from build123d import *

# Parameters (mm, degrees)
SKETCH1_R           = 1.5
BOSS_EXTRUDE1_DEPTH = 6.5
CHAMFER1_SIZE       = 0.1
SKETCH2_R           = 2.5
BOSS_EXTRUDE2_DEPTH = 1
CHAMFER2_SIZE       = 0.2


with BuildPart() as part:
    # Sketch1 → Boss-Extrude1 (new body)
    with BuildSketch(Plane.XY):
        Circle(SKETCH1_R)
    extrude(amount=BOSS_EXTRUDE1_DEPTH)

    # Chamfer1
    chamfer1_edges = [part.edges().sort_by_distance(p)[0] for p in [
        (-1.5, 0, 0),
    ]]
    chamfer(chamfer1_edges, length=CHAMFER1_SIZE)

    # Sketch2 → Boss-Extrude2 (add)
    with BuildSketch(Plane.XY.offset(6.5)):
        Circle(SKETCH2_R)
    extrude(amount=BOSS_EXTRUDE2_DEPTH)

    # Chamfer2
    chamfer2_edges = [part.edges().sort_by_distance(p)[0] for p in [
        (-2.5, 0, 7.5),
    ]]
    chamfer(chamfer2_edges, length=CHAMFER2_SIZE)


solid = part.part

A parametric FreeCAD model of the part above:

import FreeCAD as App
import Part
import Sketcher

V = App.Vector
Q = App.Units.Quantity


def edges_at(feature, points):
    """Names of the edges that pass closest to the given points."""
    edges = feature.Shape.Edges
    near = lambda p: min(range(len(edges)), key=lambda i: edges[i].distToShape(Part.Vertex(*p))[0])
    return sorted({f"Edge{near(p) + 1}" for p in points})

doc = App.newDocument("Part")
params = doc.addObject("Spreadsheet::Sheet", "Params")
for row, (alias, value) in enumerate([
    ("sketch1_diameter", "3 mm"),
    ("pad1_length", "6.5 mm"),
    ("chamfer_size", "0.1 mm"),
    ("sketch2_diameter", "5 mm"),
    ("pad2_length", "1 mm"),
    ("chamfer2_size", "0.2 mm"),
], start=1):
    params.set(f"A{row}", alias)
    params.set(f"B{row}", "=" + value)
    params.setAlias(f"B{row}", alias)

body = doc.addObject("PartDesign::Body", "Body")

sketch1 = body.newObject("Sketcher::SketchObject", "Sketch")
sketch1.AttachmentSupport = (doc.getObject("XY_Plane"), [""])
sketch1.MapMode = "FlatFace"
sketch1.addGeometry(Part.Circle(V(0, 0, 0), V(0, 0, 1), 1.5), False)
sketch1.addConstraint(Sketcher.Constraint("Coincident", 0, 3, -1, 1))
sketch1.addConstraint(Sketcher.Constraint("Diameter", 0, Q("3 mm")))
sketch1.setExpression("Constraints[1]", "Params.sketch1_diameter")
pad1 = body.newObject("PartDesign::Pad", "Pad")
pad1.Profile = sketch1
pad1.setExpression("Length", "Params.pad1_length")
doc.recompute()

chamfer = body.newObject("PartDesign::Chamfer", "Chamfer")
chamfer.Base = (pad1, edges_at(pad1, [(-1.5, 0, 0)]))
chamfer.setExpression("Size", "Params.chamfer_size")

sketch2 = body.newObject("Sketcher::SketchObject", "Sketch001")
sketch2.AttachmentSupport = (doc.getObject("XY_Plane"), [""])
sketch2.MapMode = "FlatFace"
sketch2.AttachmentOffset = App.Placement(V(0, 0, 6.5), App.Rotation())
sketch2.addGeometry(Part.Circle(V(0, 0, 0), V(0, 0, 1), 2.5), False)
sketch2.addConstraint(Sketcher.Constraint("Coincident", 0, 3, -1, 1))
sketch2.addConstraint(Sketcher.Constraint("Diameter", 0, Q("5 mm")))
sketch2.setExpression("Constraints[1]", "Params.sketch2_diameter")
pad2 = body.newObject("PartDesign::Pad", "Pad001")
pad2.Profile = sketch2
pad2.setExpression("Length", "Params.pad2_length")
doc.recompute()

chamfer2 = body.newObject("PartDesign::Chamfer", "Chamfer001")
chamfer2.Base = (pad2, edges_at(pad2, [(-2.5, 0, 7.5)]))
chamfer2.setExpression("Size", "Params.chamfer2_size")

doc.recompute()
